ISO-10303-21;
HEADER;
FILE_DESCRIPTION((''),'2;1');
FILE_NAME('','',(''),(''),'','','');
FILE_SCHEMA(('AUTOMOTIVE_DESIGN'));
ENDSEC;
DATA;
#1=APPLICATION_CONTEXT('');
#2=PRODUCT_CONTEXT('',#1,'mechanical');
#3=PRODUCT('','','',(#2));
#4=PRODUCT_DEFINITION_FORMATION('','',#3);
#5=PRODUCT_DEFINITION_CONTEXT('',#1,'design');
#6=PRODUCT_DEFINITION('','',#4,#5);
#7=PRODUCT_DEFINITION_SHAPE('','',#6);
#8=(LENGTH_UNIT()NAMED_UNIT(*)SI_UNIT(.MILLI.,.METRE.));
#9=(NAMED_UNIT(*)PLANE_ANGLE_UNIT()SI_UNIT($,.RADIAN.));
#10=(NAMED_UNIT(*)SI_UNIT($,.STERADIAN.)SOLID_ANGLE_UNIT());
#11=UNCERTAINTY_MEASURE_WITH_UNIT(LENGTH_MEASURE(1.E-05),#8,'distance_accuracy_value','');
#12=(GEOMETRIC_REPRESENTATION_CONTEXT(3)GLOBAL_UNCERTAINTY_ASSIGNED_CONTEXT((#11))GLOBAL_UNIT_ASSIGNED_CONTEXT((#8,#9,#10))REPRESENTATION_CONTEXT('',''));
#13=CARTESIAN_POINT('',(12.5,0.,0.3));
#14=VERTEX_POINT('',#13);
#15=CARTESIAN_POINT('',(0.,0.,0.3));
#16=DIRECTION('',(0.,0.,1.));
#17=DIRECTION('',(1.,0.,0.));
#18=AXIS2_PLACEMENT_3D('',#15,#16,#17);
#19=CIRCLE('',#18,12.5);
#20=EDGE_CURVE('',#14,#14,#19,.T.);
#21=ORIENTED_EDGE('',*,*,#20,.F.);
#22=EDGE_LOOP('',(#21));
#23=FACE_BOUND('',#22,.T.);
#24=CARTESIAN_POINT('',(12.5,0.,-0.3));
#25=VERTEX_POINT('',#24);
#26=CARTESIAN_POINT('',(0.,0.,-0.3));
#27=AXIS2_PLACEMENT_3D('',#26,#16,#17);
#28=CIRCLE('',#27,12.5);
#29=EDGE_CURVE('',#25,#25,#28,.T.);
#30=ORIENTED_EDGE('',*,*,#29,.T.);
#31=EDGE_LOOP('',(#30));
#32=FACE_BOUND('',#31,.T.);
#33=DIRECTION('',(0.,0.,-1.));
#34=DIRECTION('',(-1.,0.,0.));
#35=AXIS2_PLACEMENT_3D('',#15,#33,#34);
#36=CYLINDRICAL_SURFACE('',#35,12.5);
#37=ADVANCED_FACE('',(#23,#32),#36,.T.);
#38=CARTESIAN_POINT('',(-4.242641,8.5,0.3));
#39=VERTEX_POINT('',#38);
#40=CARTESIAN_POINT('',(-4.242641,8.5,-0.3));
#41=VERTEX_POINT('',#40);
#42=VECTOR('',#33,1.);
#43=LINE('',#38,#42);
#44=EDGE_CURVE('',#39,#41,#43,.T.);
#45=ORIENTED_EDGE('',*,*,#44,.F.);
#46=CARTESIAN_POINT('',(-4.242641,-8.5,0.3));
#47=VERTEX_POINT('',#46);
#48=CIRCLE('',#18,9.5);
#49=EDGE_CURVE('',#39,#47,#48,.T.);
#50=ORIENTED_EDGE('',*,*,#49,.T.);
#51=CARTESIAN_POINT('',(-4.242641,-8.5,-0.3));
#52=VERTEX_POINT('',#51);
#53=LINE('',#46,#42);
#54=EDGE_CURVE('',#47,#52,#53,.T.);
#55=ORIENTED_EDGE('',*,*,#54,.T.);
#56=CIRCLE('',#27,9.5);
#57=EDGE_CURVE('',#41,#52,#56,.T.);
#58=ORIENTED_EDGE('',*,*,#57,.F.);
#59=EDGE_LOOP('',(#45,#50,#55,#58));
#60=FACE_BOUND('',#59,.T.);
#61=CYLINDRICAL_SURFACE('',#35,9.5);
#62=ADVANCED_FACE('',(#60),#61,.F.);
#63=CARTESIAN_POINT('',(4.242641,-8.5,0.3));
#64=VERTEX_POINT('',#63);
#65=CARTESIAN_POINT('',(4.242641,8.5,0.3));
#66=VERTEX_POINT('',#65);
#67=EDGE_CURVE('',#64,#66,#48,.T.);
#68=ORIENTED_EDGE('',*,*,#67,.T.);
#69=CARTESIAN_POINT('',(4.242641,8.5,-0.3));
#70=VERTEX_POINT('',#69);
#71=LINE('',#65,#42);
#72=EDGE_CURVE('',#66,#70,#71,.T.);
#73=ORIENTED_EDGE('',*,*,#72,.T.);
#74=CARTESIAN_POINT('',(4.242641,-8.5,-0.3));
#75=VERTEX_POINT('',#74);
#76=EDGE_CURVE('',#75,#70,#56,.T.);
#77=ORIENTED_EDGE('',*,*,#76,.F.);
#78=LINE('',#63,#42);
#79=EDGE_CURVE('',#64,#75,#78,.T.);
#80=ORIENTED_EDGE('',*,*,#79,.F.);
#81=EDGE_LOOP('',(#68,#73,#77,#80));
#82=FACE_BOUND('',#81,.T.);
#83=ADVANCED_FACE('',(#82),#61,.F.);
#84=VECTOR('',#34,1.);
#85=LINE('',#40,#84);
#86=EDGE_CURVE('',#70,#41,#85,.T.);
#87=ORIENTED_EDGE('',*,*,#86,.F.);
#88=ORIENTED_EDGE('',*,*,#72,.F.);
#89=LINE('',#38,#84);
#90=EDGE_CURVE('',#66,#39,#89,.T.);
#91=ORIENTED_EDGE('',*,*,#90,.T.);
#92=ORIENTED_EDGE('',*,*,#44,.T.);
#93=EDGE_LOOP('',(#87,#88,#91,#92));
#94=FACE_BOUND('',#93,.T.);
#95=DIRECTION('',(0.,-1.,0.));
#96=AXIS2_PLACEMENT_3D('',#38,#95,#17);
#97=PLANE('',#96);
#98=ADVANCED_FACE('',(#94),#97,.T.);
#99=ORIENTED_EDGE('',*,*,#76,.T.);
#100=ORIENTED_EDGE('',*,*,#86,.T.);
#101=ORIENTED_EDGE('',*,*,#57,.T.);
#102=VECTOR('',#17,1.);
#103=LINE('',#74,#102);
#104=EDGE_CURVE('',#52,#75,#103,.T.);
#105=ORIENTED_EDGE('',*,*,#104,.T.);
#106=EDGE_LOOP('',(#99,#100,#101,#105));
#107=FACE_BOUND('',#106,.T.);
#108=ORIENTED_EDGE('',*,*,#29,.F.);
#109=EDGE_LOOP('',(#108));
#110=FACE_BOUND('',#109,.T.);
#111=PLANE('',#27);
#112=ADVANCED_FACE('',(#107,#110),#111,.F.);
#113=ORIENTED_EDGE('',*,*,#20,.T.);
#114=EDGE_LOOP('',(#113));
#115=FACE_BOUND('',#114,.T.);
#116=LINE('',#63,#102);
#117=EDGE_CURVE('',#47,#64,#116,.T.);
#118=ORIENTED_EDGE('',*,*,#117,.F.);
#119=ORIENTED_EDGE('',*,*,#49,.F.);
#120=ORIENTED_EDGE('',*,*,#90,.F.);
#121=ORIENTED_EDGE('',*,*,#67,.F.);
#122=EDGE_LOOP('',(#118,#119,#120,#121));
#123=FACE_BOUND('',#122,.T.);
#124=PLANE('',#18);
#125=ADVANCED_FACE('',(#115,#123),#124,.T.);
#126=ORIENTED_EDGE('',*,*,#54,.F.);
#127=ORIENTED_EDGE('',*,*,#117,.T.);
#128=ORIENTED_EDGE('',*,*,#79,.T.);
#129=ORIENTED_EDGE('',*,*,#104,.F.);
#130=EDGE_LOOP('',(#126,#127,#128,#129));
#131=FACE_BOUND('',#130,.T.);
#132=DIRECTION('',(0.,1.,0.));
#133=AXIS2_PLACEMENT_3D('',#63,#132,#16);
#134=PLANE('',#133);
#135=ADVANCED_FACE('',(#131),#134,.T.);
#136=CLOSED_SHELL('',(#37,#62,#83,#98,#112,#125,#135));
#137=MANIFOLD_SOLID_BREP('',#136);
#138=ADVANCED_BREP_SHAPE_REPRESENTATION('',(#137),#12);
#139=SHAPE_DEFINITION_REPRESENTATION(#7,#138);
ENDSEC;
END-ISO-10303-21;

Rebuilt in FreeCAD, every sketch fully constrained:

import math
import FreeCAD as App
import Part
import Sketcher

V = App.Vector

doc = App.newDocument("Part")
body = doc.addObject("PartDesign::Body", "Body")

sketch1 = body.newObject("Sketcher::SketchObject", "Sketch")
sketch1.AttachmentSupport = (doc.getObject("XY_Plane"), [""])
sketch1.MapMode = "FlatFace"
sketch1.addGeometry(Part.Circle(V(0, 0, 0), V(0, 0, 1), 12), False)
sketch1.addGeometry(Part.ArcOfCircle(Part.Circle(V(0, 0, 0), V(0, 0, 1), 10), math.radians(117), math.radians(243)), False)
sketch1.addGeometry(Part.LineSegment(V(-4, 8, 0), V(4, 8, 0)), False)
sketch1.addGeometry(Part.ArcOfCircle(Part.Circle(V(0, 0, 0), V(0, 0, 1), 10), math.radians(-63), math.radians(63)), False)
sketch1.addGeometry(Part.LineSegment(V(4, -8, 0), V(-4, -8, 0)), False)
sketch1.addConstraint(Sketcher.Constraint("Coincident", 1, 1, 2, 1))
sketch1.addConstraint(Sketcher.Constraint("Coincident", 2, 2, 3, 2))
sketch1.addConstraint(Sketcher.Constraint("Coincident", 3, 1, 4, 1))
sketch1.addConstraint(Sketcher.Constraint("Coincident", 4, 2, 1, 2))
sketch1.addConstraint(Sketcher.Constraint("Horizontal", 2))
sketch1.addConstraint(Sketcher.Constraint("Horizontal", 4))
sketch1.addConstraint(Sketcher.Constraint("Coincident", 0, 3, -1, 1))
sketch1.addConstraint(Sketcher.Constraint("Coincident", 1, 3, -1, 1))
sketch1.addConstraint(Sketcher.Constraint("Coincident", 3, 3, -1, 1))
sketch1.addConstraint(Sketcher.Constraint("Equal", 1, 3))
sketch1.addConstraint(Sketcher.Constraint("Vertical", 2, 2, 3, 1))
sketch1.addConstraint(Sketcher.Constraint("Diameter", 0, 25.0))
sketch1.addConstraint(Sketcher.Constraint("Radius", 1, 9.5))
sketch1.addConstraint(Sketcher.Constraint("DistanceY", 3, 1, 2, 2, 17.0))
pad1 = body.newObject("PartDesign::Pad", "Pad")
pad1.Profile = sketch1
pad1.Length = 0.6
pad1.Midplane = True

doc.recompute()
